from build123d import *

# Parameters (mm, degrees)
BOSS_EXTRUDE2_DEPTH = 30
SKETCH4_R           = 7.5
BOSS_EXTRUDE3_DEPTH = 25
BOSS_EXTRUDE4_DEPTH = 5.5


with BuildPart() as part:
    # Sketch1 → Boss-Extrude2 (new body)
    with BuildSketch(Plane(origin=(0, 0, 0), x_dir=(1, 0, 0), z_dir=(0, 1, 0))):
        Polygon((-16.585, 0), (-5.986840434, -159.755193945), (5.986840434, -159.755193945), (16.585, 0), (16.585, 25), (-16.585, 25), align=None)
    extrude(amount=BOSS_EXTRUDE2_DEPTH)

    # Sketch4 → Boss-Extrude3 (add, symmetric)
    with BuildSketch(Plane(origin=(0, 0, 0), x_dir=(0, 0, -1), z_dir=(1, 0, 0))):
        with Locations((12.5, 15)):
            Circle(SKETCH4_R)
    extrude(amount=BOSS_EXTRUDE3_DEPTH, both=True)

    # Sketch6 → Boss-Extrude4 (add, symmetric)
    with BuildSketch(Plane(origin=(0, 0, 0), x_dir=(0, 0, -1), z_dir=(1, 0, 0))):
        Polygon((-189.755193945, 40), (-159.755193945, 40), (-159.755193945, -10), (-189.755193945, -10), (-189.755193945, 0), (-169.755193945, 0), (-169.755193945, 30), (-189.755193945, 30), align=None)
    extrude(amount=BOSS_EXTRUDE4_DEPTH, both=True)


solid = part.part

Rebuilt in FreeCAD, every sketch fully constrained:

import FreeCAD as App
import Part
import Sketcher

V = App.Vector

doc = App.newDocument("Part")
body = doc.addObject("PartDesign::Body", "Body")

# Sketch on XZ plane
sketch1 = body.newObject("Sketcher::SketchObject", "Sketch")
sketch1.AttachmentSupport = (doc.getObject("XZ_Plane"), [""])
sketch1.MapMode = "FlatFace"
sketch1.addGeometry(Part.LineSegment(V(-16.585, 0, 0), V(-5.98684, 159.755194, 0)), False)
sketch1.addGeometry(Part.LineSegment(V(-5.98684, 159.755194, 0), V(5.98684, 159.755194, 0)), False)
sketch1.addGeometry(Part.LineSegment(V(5.98684, 159.755194, 0), V(16.585, 0, 0)), False)
sketch1.addGeometry(Part.LineSegment(V(16.585, 0, 0), V(16.585, -25, 0)), False)
sketch1.addGeometry(Part.LineSegment(V(16.585, -25, 0), V(-16.585, -25, 0)), False)
sketch1.addGeometry(Part.LineSegment(V(-16.585, -25, 0), V(-16.585, 0, 0)), False)
sketch1.addConstraint(Sketcher.Constraint("Coincident", 0, 2, 1, 1))
sketch1.addConstraint(Sketcher.Constraint("Coincident", 1, 2, 2, 1))
sketch1.addConstraint(Sketcher.Constraint("Coincident", 2, 2, 3, 1))
sketch1.addConstraint(Sketcher.Constraint("Coincident", 3, 2, 4, 1))
sketch1.addConstraint(Sketcher.Constraint("Coincident", 4, 2, 5, 1))
sketch1.addConstraint(Sketcher.Constraint("Coincident", 5, 2, 0, 1))
sketch1.addConstraint(Sketcher.Constraint("Horizontal", 1))
sketch1.addConstraint(Sketcher.Constraint("Vertical", 3))
sketch1.addConstraint(Sketcher.Constraint("Horizontal", 4))
sketch1.addConstraint(Sketcher.Constraint("Vertical", 5))
sketch1.addConstraint(Sketcher.Constraint("Symmetric", 2, 2, 5, 2, -1, 1))
sketch1.addConstraint(Sketcher.Constraint("PointOnObject", 2, 2, -1))
sketch1.addConstraint(Sketcher.Constraint("Equal", 0, 2))
sketch1.addConstraint(Sketcher.Constraint("DistanceY", 3, 2, 3, 1, 25.0))
sketch1.addConstraint(Sketcher.Constraint("DistanceX", 4, 2, 4, 1, 33.17))
sketch1.addConstraint(Sketcher.Constraint("DistanceX", 1, 1, 1, 2, 11.973681))
sketch1.addConstraint(Sketcher.Constraint("Distance", 0, 160.106349))
pad1 = body.newObject("PartDesign::Pad", "Pad")
pad1.Profile = sketch1
pad1.Length = 30
pad1.Reversed = True

# Sketch on YZ plane
sketch2 = body.newObject("Sketcher::SketchObject", "Sketch001")
sketch2.AttachmentSupport = (doc.getObject("YZ_Plane"), [""])
sketch2.MapMode = "FlatFace"
sketch2.addGeometry(Part.Circle(V(15, -12.5, 0), V(0, 0, 1), 7.5), False)
sketch2.addConstraint(Sketcher.Constraint("Diameter", 0, 15.0))
sketch2.addConstraint(Sketcher.Constraint("DistanceX", -1, 1, 0, 3, 15.0))
sketch2.addConstraint(Sketcher.Constraint("DistanceY", 0, 3, -1, 1, 12.5))
pad2 = body.newObject("PartDesign::Pad", "Pad001")
pad2.Profile = sketch2
pad2.Length = 50
pad2.Midplane = True

# Sketch on YZ plane
sketch3 = body.newObject("Sketcher::SketchObject", "Sketch002")
sketch3.AttachmentSupport = (doc.getObject("YZ_Plane"), [""])
sketch3.MapMode = "FlatFace"
sketch3.addGeometry(Part.LineSegment(V(40, 159.755194, 0), V(40, 189.755194, 0)), False)
sketch3.addGeometry(Part.LineSegment(V(40, 189.755194, 0), V(30, 189.755194, 0)), False)
sketch3.addGeometry(Part.LineSegment(V(30, 189.755194, 0), V(30, 169.755194, 0)), False)
sketch3.addGeometry(Part.LineSegment(V(30, 169.755194, 0), V(0, 169.755194, 0)), False)
sketch3.addGeometry(Part.LineSegment(V(0, 169.755194, 0), V(0, 189.755194, 0)), False)
sketch3.addGeometry(Part.LineSegment(V(0, 189.755194, 0), V(-10, 189.755194, 0)), False)
sketch3.addGeometry(Part.LineSegment(V(-10, 189.755194, 0), V(-10, 159.755194, 0)), False)
sketch3.addGeometry(Part.LineSegment(V(-10, 159.755194, 0), V(40, 159.755194, 0)), False)
sketch3.addConstraint(Sketcher.Constraint("Coincident", 0, 2, 1, 1))
sketch3.addConstraint(Sketcher.Constraint("Coincident", 1, 2, 2, 1))
sketch3.addConstraint(Sketcher.Constraint("Coincident", 2, 2, 3, 1))
sketch3.addConstraint(Sketcher.Constraint("Coincident", 3, 2, 4, 1))
sketch3.addConstraint(Sketcher.Constraint("Coincident", 4, 2, 5, 1))
sketch3.addConstraint(Sketcher.Constraint("Coincident", 5, 2, 6, 1))
sketch3.addConstraint(Sketcher.Constraint("Coincident", 6, 2, 7, 1))
sketch3.addConstraint(Sketcher.Constraint("Coincident", 7, 2, 0, 1))
sketch3.addConstraint(Sketcher.Constraint("Vertical", 0))
sketch3.addConstraint(Sketcher.Constraint("Horizontal", 1))
sketch3.addConstraint(Sketcher.Constraint("Vertical", 2))
sketch3.addConstraint(Sketcher.Constraint("Horizontal", 3))
sketch3.addConstraint(Sketcher.Constraint("Vertical", 4))
sketch3.addConstraint(Sketcher.Constraint("Horizontal", 5))
sketch3.addConstraint(Sketcher.Constraint("Vertical", 6))
sketch3.addConstraint(Sketcher.Constraint("Horizontal", 7))
sketch3.addConstraint(Sketcher.Constraint("PointOnObject", 3, 2, -2))
sketch3.addConstraint(Sketcher.Constraint("Horizontal", 1, 2, 4, 2))
sketch3.addConstraint(Sketcher.Constraint("Equal", 1, 5))
sketch3.addConstraint(Sketcher.Constraint("Equal", 3, 0))
sketch3.addConstraint(Sketcher.Constraint("DistanceX", 1, 2, 1, 1, 10.0))
sketch3.addConstraint(Sketcher.Constraint("DistanceX", 3, 2, 3, 1, 30.0))
sketch3.addConstraint(Sketcher.Constraint("DistanceY", 2, 2, 2, 1, 20.0))
sketch3.addConstraint(Sketcher.Constraint("DistanceY", -1, 1, 0, 2, 189.755194))
pad3 = body.newObject("PartDesign::Pad", "Pad002")
pad3.Profile = sketch3
pad3.Length = 11
pad3.Midplane = True

doc.recompute()
